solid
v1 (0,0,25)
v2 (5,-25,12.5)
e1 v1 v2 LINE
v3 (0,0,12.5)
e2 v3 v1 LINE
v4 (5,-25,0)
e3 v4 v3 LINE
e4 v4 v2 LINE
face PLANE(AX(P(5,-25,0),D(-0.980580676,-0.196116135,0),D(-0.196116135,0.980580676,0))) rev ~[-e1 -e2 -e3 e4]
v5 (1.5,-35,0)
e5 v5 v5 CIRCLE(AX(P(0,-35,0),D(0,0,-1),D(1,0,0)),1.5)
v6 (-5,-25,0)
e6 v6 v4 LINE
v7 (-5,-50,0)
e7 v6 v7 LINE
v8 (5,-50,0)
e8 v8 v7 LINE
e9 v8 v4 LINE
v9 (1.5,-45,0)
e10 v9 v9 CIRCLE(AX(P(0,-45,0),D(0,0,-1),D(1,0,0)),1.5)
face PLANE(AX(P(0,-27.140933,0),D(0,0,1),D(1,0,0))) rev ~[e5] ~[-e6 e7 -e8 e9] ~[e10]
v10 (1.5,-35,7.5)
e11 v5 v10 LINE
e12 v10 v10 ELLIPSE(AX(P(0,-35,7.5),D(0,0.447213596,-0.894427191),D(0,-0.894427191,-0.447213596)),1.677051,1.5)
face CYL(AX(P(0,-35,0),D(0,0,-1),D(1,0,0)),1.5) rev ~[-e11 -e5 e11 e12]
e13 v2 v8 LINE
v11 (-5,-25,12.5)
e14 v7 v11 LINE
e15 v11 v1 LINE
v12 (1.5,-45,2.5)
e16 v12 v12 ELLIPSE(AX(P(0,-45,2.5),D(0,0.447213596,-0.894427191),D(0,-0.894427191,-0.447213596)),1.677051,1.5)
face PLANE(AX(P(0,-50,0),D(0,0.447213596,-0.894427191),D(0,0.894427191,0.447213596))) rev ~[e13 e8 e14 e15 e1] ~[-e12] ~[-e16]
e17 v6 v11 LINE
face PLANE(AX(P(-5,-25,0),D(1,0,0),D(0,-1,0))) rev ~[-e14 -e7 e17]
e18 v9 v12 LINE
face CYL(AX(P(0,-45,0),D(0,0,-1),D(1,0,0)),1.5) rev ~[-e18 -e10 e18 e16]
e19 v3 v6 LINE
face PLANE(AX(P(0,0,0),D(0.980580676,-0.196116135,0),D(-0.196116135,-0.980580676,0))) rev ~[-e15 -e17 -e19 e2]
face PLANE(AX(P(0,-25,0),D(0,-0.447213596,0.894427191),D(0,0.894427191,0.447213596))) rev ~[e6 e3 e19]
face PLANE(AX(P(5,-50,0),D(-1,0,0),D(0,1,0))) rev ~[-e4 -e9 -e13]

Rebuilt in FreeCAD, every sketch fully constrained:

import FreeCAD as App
import Part
import Sketcher

V = App.Vector

doc = App.newDocument("Part")
body = doc.addObject("PartDesign::Body", "Body")

# Sketch on XY plane
sketch1 = doc.addObject("Sketcher::SketchObject", "Sketch")
body.addObject(sketch1)
sketch1.AttachmentSupport = (doc.XY_Plane, [""])
sketch1.MapMode = "FlatFace"
sketch1.addGeometry([
    Part.LineSegment(V(-5, -25, 0), V(-5, -50, 0)),  # 0
    Part.LineSegment(V(-5, -50, 0), V(5, -50, 0)),  # 1
    Part.LineSegment(V(5, -50, 0), V(5, -25, 0)),  # 2
    Part.LineSegment(V(5, -25, 0), V(0, 0, 0)),  # 3
    Part.LineSegment(V(0, 0, 0), V(-5, -25, 0)),  # 4
], False)
sketch1.addConstraint([
    Sketcher.Constraint("Coincident", 0, 2, 1, 1),
    Sketcher.Constraint("Coincident", 1, 2, 2, 1),
    Sketcher.Constraint("Coincident", 2, 2, 3, 1),
    Sketcher.Constraint("Coincident", 3, 2, 4, 1),
    Sketcher.Constraint("Coincident", 4, 2, 0, 1),
    Sketcher.Constraint("Vertical", 0),
    Sketcher.Constraint("Horizontal", 1),
    Sketcher.Constraint("Vertical", 2),
    Sketcher.Constraint("Coincident", 3, 2, -1, 1),
    Sketcher.Constraint("Symmetric", 2, 2, 4, 2, -2),
    Sketcher.Constraint("DistanceX", 1, 1, 1, 2, 10.0),
    Sketcher.Constraint("DistanceY", 0, 2, 0, 1, 25.0),
    Sketcher.Constraint("DistanceY", 0, 2, -1, 1, 50.0),
])
pad1 = doc.addObject("PartDesign::Pad", "Pad")
body.addObject(pad1)
pad1.Profile = sketch1
pad1.Length = 25

# Sketch on YZ plane
sketch2 = doc.addObject("Sketcher::SketchObject", "Sketch001")
body.addObject(sketch2)
sketch2.AttachmentSupport = (doc.YZ_Plane, [""])
sketch2.MapMode = "FlatFace"
sketch2.addGeometry([
    Part.LineSegment(V(-50, 0, 0), V(0, 25, 0)),  # 0
    Part.LineSegment(V(0, 25, 0), V(-50, 25, 0)),  # 1
    Part.LineSegment(V(-50, 25, 0), V(-50, 0, 0)),  # 2
    Part.LineSegment(V(-25, 0, 0), V(0, 0, 0)),  # 3
    Part.LineSegment(V(0, 0, 0), V(0, 12, 0)),  # 4
    Part.LineSegment(V(0, 12, 0), V(-25, 0, 0)),  # 5
], False)
sketch2.addConstraint([
    Sketcher.Constraint("Coincident", 0, 2, 1, 1),
    Sketcher.Constraint("Coincident", 1, 2, 2, 1),
    Sketcher.Constraint("Coincident", 2, 2, 0, 1),
    Sketcher.Constraint("Coincident", 3, 2, 4, 1),
    Sketcher.Constraint("Coincident", 4, 2, 5, 1),
    Sketcher.Constraint("Coincident", 5, 2, 3, 1),
    Sketcher.Constraint("Horizontal", 1),
    Sketcher.Constraint("Vertical", 2),
    Sketcher.Constraint("Horizontal", 3),
    Sketcher.Constraint("Vertical", 4),
    Sketcher.Constraint("Coincident", 3, 2, -1, 1),
    Sketcher.Constraint("PointOnObject", 0, 2, -2),
    Sketcher.Constraint("PointOnObject", 2, 2, -1),
    Sketcher.Constraint("Parallel", 0, 5),
    Sketcher.Constraint("Equal", 3, 2),
    Sketcher.Constraint("DistanceX", 1, 2, 1, 1, 50.0),
    Sketcher.Constraint("DistanceX", 3, 1, 3, 2, 25.0),
])
pocket1 = doc.addObject("PartDesign::Pocket", "Pocket")
body.addObject(pocket1)
pocket1.Profile = sketch2
pocket1.Type = "ThroughAll"

# Sketch on YZ plane
sketch3 = doc.addObject("Sketcher::SketchObject", "Sketch002")
body.addObject(sketch3)
sketch3.AttachmentSupport = (doc.YZ_Plane, [""])
sketch3.MapMode = "FlatFace"
sketch3.addGeometry([
    Part.LineSegment(V(0, 25, 0), V(-50, 0, 0)),  # 0
    Part.LineSegment(V(-50, 0, 0), V(-50, 25, 0)),  # 1
    Part.LineSegment(V(-50, 25, 0), V(0, 25, 0)),  # 2
    Part.LineSegment(V(0, 0, 0), V(-25, 0, 0)),  # 3
    Part.LineSegment(V(-25, 0, 0), V(0, 12, 0)),  # 4
    Part.LineSegment(V(0, 12, 0), V(0, 0, 0)),  # 5
], False)
sketch3.addConstraint([
    Sketcher.Constraint("Coincident", 0, 2, 1, 1),
    Sketcher.Constraint("Coincident", 1, 2, 2, 1),
    Sketcher.Constraint("Coincident", 2, 2, 0, 1),
    Sketcher.Constraint("Coincident", 3, 2, 4, 1),
    Sketcher.Constraint("Coincident", 4, 2, 5, 1),
    Sketcher.Constraint("Coincident", 5, 2, 3, 1),
    Sketcher.Constraint("Vertical", 1),
    Sketcher.Constraint("Horizontal", 2),
    Sketcher.Constraint("Horizontal", 3),
    Sketcher.Constraint("Vertical", 5),
    Sketcher.Constraint("Coincident", 5, 2, -1, 1),
    Sketcher.Constraint("PointOnObject", 0, 2, -1),
    Sketcher.Constraint("PointOnObject", 2, 2, -2),
    Sketcher.Constraint("Parallel", 0, 4),
    Sketcher.Constraint("Equal", 3, 1),
    Sketcher.Constraint("DistanceX", 2, 1, 2, 2, 50.0),
    Sketcher.Constraint("DistanceX", 3, 2, 3, 1, 25.0),
])
pocket2 = doc.addObject("PartDesign::Pocket", "Pocket001")
body.addObject(pocket2)
pocket2.Profile = sketch3
pocket2.Type = "ThroughAll"
pocket2.Reversed = True

# Sketch on XY plane
sketch4 = doc.addObject("Sketcher::SketchObject", "Sketch003")
body.addObject(sketch4)
sketch4.AttachmentSupport = (doc.XY_Plane, [""])
sketch4.MapMode = "FlatFace"
sketch4.addGeometry([
    Part.Circle(V(0, -35, 0), V(0, 0, 1), 1.5),
    Part.Circle(V(0, -45, 0), V(0, 0, 1), 1.5),
], False)
sketch4.addConstraint([
    Sketcher.Constraint("Equal", 0, 1),
    Sketcher.Constraint("PointOnObject", 0, 3, -2),
    Sketcher.Constraint("PointOnObject", 1, 3, -2),
    Sketcher.Constraint("Diameter", 0, 3.0),
    Sketcher.Constraint("DistanceY", 0, 3, -1, 1, 35.0),
    Sketcher.Constraint("DistanceY", 1, 3, -1, 1, 45.0),
])
pocket3 = doc.addObject("PartDesign::Pocket", "Pocket002")
body.addObject(pocket3)
pocket3.Profile = sketch4
pocket3.Type = "ThroughAll"
pocket3.Reversed = True

doc.recompute()
